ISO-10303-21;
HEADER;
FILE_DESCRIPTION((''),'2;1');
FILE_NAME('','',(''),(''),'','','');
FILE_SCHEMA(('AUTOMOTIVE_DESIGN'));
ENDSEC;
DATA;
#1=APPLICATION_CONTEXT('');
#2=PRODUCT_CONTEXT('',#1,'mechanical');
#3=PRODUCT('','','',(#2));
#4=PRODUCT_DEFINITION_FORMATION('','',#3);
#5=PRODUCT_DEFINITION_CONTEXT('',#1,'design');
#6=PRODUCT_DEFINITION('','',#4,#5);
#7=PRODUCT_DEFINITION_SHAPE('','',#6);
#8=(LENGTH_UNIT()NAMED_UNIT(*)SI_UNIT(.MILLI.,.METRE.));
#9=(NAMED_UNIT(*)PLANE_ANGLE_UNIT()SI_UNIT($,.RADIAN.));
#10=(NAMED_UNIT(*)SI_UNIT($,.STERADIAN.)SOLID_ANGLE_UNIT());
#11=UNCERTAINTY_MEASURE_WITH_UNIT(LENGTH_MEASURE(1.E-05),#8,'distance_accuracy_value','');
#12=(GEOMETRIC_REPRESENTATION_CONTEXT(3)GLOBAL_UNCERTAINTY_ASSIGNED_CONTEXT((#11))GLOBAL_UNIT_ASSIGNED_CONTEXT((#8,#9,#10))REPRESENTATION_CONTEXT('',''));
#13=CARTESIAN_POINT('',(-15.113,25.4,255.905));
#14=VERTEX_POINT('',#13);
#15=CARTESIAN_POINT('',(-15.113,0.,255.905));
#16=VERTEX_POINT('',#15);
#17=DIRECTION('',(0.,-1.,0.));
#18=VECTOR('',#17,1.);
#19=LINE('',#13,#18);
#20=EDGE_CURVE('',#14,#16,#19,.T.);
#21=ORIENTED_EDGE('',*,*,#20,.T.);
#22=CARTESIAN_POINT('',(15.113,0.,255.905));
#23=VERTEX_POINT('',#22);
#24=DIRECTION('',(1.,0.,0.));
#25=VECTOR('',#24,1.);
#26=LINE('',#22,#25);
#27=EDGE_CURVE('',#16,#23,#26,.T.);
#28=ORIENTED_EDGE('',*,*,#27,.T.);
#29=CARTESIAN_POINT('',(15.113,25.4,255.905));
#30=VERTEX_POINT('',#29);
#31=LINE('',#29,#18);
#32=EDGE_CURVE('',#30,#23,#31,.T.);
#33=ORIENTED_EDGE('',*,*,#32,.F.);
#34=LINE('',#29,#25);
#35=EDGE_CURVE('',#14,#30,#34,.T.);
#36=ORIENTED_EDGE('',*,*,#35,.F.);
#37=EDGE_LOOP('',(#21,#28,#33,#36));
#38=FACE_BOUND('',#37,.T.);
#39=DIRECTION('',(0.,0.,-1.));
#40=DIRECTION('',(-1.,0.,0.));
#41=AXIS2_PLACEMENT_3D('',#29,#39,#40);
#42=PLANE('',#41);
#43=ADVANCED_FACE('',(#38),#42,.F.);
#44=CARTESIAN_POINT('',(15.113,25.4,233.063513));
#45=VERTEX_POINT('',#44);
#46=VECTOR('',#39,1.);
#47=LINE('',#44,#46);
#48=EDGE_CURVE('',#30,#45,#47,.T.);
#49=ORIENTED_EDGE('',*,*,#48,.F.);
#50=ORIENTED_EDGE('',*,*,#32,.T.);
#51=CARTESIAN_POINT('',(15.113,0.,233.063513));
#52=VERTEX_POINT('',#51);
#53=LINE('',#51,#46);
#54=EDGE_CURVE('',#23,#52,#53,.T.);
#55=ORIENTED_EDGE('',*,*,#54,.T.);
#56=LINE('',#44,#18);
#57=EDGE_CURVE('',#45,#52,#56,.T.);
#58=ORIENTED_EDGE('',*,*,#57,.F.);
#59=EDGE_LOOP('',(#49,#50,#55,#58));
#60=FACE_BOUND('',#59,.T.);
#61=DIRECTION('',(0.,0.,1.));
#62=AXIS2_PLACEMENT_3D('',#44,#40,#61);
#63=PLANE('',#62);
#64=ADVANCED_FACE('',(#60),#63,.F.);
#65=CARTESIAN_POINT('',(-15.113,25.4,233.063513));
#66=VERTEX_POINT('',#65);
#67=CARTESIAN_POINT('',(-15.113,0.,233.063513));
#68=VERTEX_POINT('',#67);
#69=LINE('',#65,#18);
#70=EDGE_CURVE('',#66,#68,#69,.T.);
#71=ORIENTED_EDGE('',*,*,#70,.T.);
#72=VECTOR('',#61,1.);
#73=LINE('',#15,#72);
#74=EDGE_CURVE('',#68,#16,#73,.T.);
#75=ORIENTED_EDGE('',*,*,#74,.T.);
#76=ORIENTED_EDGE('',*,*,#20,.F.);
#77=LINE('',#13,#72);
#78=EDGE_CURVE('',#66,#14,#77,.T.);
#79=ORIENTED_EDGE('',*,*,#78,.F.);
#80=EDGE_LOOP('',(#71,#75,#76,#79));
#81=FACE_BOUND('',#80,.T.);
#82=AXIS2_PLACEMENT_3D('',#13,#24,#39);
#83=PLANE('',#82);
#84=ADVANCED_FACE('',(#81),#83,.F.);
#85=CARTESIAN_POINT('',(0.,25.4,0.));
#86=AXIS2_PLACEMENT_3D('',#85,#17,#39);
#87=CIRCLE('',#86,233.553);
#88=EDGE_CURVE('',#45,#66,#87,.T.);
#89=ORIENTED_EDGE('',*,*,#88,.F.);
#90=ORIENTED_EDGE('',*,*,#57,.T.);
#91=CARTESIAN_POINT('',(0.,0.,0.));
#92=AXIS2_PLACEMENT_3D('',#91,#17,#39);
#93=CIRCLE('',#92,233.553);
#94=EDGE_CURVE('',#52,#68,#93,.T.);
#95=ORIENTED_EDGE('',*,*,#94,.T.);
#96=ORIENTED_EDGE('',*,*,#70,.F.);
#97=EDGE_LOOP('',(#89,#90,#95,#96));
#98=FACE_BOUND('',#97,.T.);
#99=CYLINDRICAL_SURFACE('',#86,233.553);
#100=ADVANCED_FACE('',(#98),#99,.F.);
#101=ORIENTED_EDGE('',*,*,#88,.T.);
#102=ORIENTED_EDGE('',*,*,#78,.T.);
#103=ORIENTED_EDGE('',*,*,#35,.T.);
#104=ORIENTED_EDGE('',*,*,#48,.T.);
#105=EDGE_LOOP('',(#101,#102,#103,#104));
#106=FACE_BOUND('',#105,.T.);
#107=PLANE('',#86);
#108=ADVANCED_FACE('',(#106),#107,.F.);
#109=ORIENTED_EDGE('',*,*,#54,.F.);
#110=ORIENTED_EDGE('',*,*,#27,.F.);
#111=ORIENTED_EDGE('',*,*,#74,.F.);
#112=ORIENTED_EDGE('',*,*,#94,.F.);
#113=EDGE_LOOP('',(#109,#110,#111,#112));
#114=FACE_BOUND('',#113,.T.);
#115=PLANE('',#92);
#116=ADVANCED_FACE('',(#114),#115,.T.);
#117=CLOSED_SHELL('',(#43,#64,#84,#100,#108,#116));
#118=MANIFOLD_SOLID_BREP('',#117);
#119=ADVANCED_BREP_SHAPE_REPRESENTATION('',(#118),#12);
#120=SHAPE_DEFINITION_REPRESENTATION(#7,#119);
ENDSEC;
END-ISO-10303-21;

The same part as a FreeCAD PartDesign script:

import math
import FreeCAD as App
import Part
import Sketcher
from FreeCAD import Vector
Q = App.Units.Quantity

doc = App.newDocument("Part")
body = doc.addObject("PartDesign::Body", "Body")

# Sketch on XZ plane
sketch1 = body.newObject("Sketcher::SketchObject", "Sketch")
sketch1.AttachmentSupport = (doc.getObject("XZ_Plane"), [""])
sketch1.MapMode = "FlatFace"
sketch1.addGeometry([
    Part.LineSegment(Vector(15.113, 255.905, 0), Vector(15.113, 233.063513, 0)),
    Part.ArcOfCircle(Part.Circle(Vector(0, 0, 0), Vector(0, 0, 1), 233.553), math.radians(86.28985), math.radians(93.71015)),
    Part.LineSegment(Vector(-15.113, 233.063513, 0), Vector(-15.113, 255.905, 0)),
    Part.LineSegment(Vector(-15.113, 255.905, 0), Vector(15.113, 255.905, 0)),
], False)
sketch1.addConstraint([
    Sketcher.Constraint("Coincident", 0, 2, 1, 1),
    Sketcher.Constraint("Coincident", 1, 2, 2, 1),
    Sketcher.Constraint("Coincident", 2, 2, 3, 1),
    Sketcher.Constraint("Coincident", 3, 2, 0, 1),
    Sketcher.Constraint("Vertical", 0),
    Sketcher.Constraint("Vertical", 2),
    Sketcher.Constraint("Horizontal", 3),
    Sketcher.Constraint("Coincident", 1, 3, -1, 1),
    Sketcher.Constraint("Horizontal", 0, 2, 1, 2),
    Sketcher.Constraint("Radius", 1, Q("9.195 in")),
    Sketcher.Constraint("DistanceX", 3, 1, 3, 2, Q("1.19 in")),
    Sketcher.Constraint("DistanceY", -1, 1, 2, 2, Q("10.075 in")),
])
pad1 = body.newObject("PartDesign::Pad", "Pad")
pad1.Profile = sketch1
pad1.Length = Q("1 in")
pad1.Reversed = True

doc.recompute()
